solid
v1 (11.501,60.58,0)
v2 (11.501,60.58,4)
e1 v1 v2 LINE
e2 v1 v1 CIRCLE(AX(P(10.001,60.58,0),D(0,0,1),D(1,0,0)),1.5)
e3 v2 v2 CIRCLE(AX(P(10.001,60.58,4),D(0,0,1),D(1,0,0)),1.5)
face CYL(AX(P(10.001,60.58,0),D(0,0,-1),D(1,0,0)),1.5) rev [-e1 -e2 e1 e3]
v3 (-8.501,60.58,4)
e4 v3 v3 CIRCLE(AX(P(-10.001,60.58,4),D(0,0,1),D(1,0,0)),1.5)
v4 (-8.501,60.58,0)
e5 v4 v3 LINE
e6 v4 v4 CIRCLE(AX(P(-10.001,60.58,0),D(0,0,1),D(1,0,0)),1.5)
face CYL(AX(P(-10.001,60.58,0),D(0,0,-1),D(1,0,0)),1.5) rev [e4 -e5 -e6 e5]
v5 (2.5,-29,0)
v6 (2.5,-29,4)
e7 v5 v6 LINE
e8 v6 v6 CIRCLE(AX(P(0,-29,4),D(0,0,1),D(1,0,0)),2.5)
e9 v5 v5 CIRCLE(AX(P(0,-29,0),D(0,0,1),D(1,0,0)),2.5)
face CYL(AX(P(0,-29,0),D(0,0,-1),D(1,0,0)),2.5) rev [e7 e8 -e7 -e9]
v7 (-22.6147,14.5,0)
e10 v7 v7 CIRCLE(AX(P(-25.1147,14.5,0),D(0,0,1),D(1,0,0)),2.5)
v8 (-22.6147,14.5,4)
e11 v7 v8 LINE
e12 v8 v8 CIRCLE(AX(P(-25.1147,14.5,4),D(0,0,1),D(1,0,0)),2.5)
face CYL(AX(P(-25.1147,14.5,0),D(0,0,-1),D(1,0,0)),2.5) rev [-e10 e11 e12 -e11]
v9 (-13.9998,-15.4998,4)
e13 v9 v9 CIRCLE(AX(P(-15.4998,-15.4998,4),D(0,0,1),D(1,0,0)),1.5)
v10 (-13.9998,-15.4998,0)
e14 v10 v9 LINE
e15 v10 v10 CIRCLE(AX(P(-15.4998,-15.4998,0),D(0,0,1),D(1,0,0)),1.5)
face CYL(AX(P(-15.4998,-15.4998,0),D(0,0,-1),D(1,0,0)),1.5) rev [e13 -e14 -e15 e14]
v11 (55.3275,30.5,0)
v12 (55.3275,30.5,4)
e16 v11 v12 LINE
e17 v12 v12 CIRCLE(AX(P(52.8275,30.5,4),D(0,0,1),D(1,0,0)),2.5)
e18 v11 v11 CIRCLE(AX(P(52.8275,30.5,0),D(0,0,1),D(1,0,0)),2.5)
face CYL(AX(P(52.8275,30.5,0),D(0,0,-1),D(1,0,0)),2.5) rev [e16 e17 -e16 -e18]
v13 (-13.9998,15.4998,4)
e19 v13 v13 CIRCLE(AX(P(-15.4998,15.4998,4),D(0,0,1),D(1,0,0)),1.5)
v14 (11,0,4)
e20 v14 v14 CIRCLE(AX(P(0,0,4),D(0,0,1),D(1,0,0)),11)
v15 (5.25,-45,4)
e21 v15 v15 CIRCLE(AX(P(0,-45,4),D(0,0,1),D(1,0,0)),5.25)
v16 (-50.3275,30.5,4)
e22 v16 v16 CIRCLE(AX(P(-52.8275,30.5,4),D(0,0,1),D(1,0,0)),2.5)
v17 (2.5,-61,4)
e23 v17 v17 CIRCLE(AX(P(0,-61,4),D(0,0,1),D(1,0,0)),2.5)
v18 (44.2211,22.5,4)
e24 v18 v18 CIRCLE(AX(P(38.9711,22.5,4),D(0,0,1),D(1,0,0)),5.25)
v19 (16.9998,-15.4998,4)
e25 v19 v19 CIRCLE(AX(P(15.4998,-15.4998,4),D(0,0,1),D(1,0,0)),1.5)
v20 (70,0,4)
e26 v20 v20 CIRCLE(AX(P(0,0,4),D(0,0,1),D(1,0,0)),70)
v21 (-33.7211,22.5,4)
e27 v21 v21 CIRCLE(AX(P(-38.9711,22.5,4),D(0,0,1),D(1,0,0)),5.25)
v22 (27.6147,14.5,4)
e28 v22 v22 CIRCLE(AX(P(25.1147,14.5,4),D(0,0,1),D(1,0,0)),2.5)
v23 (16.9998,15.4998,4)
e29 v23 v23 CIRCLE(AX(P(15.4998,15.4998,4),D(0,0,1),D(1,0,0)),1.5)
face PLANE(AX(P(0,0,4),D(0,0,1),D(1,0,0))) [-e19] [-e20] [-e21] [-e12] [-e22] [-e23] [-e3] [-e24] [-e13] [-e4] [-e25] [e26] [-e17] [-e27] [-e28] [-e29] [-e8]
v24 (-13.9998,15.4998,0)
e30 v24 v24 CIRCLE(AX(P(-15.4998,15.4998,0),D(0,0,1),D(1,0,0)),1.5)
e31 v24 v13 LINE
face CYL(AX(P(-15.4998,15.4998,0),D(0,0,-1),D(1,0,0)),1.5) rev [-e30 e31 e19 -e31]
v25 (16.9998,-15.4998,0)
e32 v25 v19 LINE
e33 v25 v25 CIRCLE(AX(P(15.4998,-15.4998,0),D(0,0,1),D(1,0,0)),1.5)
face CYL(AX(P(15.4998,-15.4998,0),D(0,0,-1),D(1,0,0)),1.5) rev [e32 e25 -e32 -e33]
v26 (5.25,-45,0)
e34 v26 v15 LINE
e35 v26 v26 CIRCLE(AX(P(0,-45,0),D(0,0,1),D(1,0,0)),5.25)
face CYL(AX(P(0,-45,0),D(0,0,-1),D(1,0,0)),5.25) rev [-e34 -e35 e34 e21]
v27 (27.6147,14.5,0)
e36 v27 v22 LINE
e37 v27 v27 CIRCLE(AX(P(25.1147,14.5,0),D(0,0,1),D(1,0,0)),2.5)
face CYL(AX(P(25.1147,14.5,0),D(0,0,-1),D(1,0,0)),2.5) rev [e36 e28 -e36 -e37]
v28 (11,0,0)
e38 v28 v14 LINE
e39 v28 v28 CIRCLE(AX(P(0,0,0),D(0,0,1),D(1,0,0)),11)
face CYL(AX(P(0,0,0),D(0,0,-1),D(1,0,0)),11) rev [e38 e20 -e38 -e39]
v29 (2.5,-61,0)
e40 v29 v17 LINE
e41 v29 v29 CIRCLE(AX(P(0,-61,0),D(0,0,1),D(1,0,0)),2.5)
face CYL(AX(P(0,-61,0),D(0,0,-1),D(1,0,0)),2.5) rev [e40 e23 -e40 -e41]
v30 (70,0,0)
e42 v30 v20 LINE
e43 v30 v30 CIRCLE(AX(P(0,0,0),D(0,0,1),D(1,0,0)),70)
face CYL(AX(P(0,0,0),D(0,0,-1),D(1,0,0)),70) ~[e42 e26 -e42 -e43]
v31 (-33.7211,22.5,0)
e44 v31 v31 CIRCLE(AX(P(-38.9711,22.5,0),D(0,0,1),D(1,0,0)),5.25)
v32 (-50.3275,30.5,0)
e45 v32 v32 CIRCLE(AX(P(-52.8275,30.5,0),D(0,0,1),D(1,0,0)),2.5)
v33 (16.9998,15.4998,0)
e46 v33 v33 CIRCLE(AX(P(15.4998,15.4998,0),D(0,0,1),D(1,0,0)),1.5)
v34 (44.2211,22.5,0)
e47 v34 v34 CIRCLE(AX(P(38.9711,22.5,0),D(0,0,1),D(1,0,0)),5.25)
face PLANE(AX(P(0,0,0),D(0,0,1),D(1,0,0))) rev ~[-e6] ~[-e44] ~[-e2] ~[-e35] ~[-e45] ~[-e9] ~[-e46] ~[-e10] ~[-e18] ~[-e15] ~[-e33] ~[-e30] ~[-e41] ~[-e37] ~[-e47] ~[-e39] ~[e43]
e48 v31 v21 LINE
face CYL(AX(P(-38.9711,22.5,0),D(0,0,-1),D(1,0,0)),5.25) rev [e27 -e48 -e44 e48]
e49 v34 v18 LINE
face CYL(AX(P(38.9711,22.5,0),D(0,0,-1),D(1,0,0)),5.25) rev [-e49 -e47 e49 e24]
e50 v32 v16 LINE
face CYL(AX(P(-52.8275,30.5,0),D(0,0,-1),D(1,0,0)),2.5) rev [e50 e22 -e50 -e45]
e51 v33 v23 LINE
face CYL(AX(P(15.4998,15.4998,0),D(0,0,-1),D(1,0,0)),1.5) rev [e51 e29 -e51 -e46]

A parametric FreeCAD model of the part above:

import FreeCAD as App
import Part
import Sketcher
from FreeCAD import Vector

doc = App.newDocument("Part")
params = doc.addObject("Spreadsheet::Sheet", "Params")
for row, (alias, value) in enumerate([
    ("sketch1_diameter", "140 mm"),
    ("sketch1_diameter2", "3 mm"),
    ("sketch1_diameter3", "5 mm"),
    ("sketch1_diameter4", "22 mm"),
    ("sketch1_diameter5", "10.5 mm"),
    ("pad1_length", "4 mm"),
], start=1):
    params.set(f"A{row}", alias)
    params.set(f"B{row}", "=" + value)
    params.setAlias(f"B{row}", alias)

body = doc.addObject("PartDesign::Body", "Body")

# Sketch on XY plane
sketch1 = doc.addObject("Sketcher::SketchObject", "Sketch")
body.addObject(sketch1)
sketch1.AttachmentSupport = (doc.XY_Plane, [""])
sketch1.MapMode = "FlatFace"
sketch1.addGeometry([
    Part.Circle(Vector(0, 0, 0), Vector(0, 0, 1), 70),  # 0
    Part.Circle(Vector(-15.5, -15.5, 0), Vector(0, 0, 1), 1.5),  # 1
    Part.Circle(Vector(0, -61, 0), Vector(0, 0, 1), 2.5),  # 2
    Part.Circle(Vector(0, -45, 0), Vector(0, 0, 1), 5.2),  # 3
    Part.Circle(Vector(0, -29, 0), Vector(0, 0, 1), 2.5),  # 4
    Part.Circle(Vector(15.5, -15.5, 0), Vector(0, 0, 1), 1.5),  # 5
    Part.Circle(Vector(-52.8, 30.5, 0), Vector(0, 0, 1), 2.5),  # 6
    Part.Circle(Vector(-39, 22.5, 0), Vector(0, 0, 1), 5.2),  # 7
    Part.Circle(Vector(-25.1, 14.5, 0), Vector(0, 0, 1), 2.5),  # 8
    Part.Circle(Vector(-15.5, 15.5, 0), Vector(0, 0, 1), 1.5),  # 9
    Part.Circle(Vector(-10, 60.6, 0), Vector(0, 0, 1), 1.5),  # 10
    Part.Circle(Vector(0, 0, 0), Vector(0, 0, 1), 11),  # 11
    Part.Circle(Vector(15.5, 15.5, 0), Vector(0, 0, 1), 1.5),  # 12
    Part.Circle(Vector(25.1, 14.5, 0), Vector(0, 0, 1), 2.5),  # 13
    Part.Circle(Vector(39, 22.5, 0), Vector(0, 0, 1), 5.2),  # 14
    Part.Circle(Vector(52.8, 30.5, 0), Vector(0, 0, 1), 2.5),  # 15
    Part.Circle(Vector(10, 60.6, 0), Vector(0, 0, 1), 1.5),  # 16
], False)
sketch1.addConstraint([
    Sketcher.Constraint("Coincident", 0, 3, -1, 1),
    Sketcher.Constraint("Coincident", 11, 3, -1, 1),
    Sketcher.Constraint("Equal", 2, 4),
    Sketcher.Constraint("Equal", 1, 5),
    Sketcher.Constraint("Equal", 4, 6),
    Sketcher.Constraint("Equal", 3, 7),
    Sketcher.Constraint("Equal", 6, 8),
    Sketcher.Constraint("Equal", 5, 9),
    Sketcher.Constraint("Equal", 9, 10),
    Sketcher.Constraint("Equal", 10, 12),
    Sketcher.Constraint("Equal", 8, 13),
    Sketcher.Constraint("Equal", 7, 14),
    Sketcher.Constraint("Equal", 13, 15),
    Sketcher.Constraint("Equal", 12, 16),
    Sketcher.Constraint("Symmetric", 5, 3, 9, 3, -1, 1),
    Sketcher.Constraint("Symmetric", 1, 3, 12, 3, -1, 1),
    Sketcher.Constraint("Symmetric", 1, 3, 5, 3, -2),
    Sketcher.Constraint("Symmetric", 8, 3, 13, 3, -2),
    Sketcher.Constraint("Symmetric", 7, 3, 14, 3, -2),
    Sketcher.Constraint("Symmetric", 6, 3, 15, 3, -2),
    Sketcher.Constraint("Symmetric", 10, 3, 16, 3, -2),
    Sketcher.Constraint("PointOnObject", 2, 3, -2),
    Sketcher.Constraint("PointOnObject", 3, 3, -2),
    Sketcher.Constraint("PointOnObject", 4, 3, -2),
    Sketcher.Constraint("Diameter", 0, 140.0),
    Sketcher.Constraint("Diameter", 1, 3.0),
    Sketcher.Constraint("Diameter", 2, 5.0),
    Sketcher.Constraint("Diameter", 11, 22.0),
    Sketcher.Constraint("Diameter", 3, 10.5),
    Sketcher.Constraint("DistanceY", 3, 3, -1, 1, 45.0),
    Sketcher.Constraint("DistanceY", 2, 3, 3, 3, 16.0),
    Sketcher.Constraint("DistanceY", 3, 3, 4, 3, 16.0),
    Sketcher.Constraint("DistanceY", 8, 3, 6, 3, 16.0),
    Sketcher.Constraint("DistanceY", -1, 1, 10, 3, 60.58),
    Sketcher.Constraint("DistanceX", 10, 3, -1, 1, 10.001),
    Sketcher.Constraint("DistanceY", 7, 3, 6, 3, 8.0),
    Sketcher.Constraint("DistanceX", 1, 3, -1, 1, 15.4998),
    Sketcher.Constraint("DistanceY", 1, 3, -1, 1, 15.4998),
    Sketcher.Constraint("DistanceY", -1, 1, 6, 3, 30.5),
    Sketcher.Constraint("DistanceX", 7, 3, 10, 3, 28.97),
    Sketcher.Constraint("DistanceX", 8, 3, 1, 3, 9.615),
    Sketcher.Constraint("DistanceX", 6, 3, -1, 1, 52.8275),
])
sketch1.setExpression("Constraints[24]", "Params.sketch1_diameter")
sketch1.setExpression("Constraints[25]", "Params.sketch1_diameter2")
sketch1.setExpression("Constraints[26]", "Params.sketch1_diameter3")
sketch1.setExpression("Constraints[27]", "Params.sketch1_diameter4")
sketch1.setExpression("Constraints[28]", "Params.sketch1_diameter5")
pad1 = doc.addObject("PartDesign::Pad", "Pad")
body.addObject(pad1)
pad1.Profile = sketch1
pad1.setExpression("Length", "Params.pad1_length")

doc.recompute()
